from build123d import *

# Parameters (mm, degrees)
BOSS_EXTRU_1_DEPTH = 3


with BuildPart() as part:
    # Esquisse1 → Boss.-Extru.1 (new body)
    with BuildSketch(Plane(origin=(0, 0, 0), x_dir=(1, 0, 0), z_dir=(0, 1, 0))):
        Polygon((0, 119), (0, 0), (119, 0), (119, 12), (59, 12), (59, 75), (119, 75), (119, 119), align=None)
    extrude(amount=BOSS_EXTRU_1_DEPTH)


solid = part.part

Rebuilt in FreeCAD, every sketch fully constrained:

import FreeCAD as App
import Part
import Sketcher

V = App.Vector
Q = App.Units.Quantity


def add_polygon(sketch, points):
    """Adds a closed chain of lines whose ends are joined by coincident constraints."""
    first, n = sketch.GeometryCount, len(points)
    for a, b in zip(points, points[1:] + points[:1]):
        sketch.addGeometry(Part.LineSegment(App.Vector(*a, 0), App.Vector(*b, 0)), False)
    for i in range(n):
        sketch.addConstraint(Sketcher.Constraint("Coincident", first + i, 2, first + (i + 1) % n, 1))

doc = App.newDocument("Part")
body = doc.addObject("PartDesign::Body", "Body")

# Sketch on XZ plane
sketch1 = doc.addObject("Sketcher::SketchObject", "Sketch")
body.addObject(sketch1)
sketch1.AttachmentSupport = (doc.XZ_Plane, [""])
sketch1.MapMode = "FlatFace"
add_polygon(sketch1, [(0, -119), (0, 0), (119, 0), (119, -12), (59, -12), (59, -75), (119, -75), (119, -119)])  # lines 0-7
sketch1.addConstraint([
    Sketcher.Constraint("Vertical", 0),
    Sketcher.Constraint("Horizontal", 1),
    Sketcher.Constraint("Vertical", 2),
    Sketcher.Constraint("Horizontal", 3),
    Sketcher.Constraint("Vertical", 4),
    Sketcher.Constraint("Horizontal", 5),
    Sketcher.Constraint("Vertical", 6),
    Sketcher.Constraint("Horizontal", 7),
    Sketcher.Constraint("Coincident", 0, 2, -1, 1),
    Sketcher.Constraint("Vertical", 2, 2, 5, 2),
    Sketcher.Constraint("Equal", 7, 0),
    Sketcher.Constraint("DistanceX", 1, 1, 1, 2, Q("119 mm")),
    Sketcher.Constraint("DistanceX", 3, 2, 3, 1, Q("60 mm")),
    Sketcher.Constraint("DistanceY", 2, 2, 2, 1, Q("12 mm")),
    Sketcher.Constraint("DistanceY", 4, 2, 4, 1, Q("63 mm")),
])
pad1 = doc.addObject("PartDesign::Pad", "Pad")
body.addObject(pad1)
pad1.Profile = sketch1
pad1.Length = 3
pad1.Reversed = True

doc.recompute()
